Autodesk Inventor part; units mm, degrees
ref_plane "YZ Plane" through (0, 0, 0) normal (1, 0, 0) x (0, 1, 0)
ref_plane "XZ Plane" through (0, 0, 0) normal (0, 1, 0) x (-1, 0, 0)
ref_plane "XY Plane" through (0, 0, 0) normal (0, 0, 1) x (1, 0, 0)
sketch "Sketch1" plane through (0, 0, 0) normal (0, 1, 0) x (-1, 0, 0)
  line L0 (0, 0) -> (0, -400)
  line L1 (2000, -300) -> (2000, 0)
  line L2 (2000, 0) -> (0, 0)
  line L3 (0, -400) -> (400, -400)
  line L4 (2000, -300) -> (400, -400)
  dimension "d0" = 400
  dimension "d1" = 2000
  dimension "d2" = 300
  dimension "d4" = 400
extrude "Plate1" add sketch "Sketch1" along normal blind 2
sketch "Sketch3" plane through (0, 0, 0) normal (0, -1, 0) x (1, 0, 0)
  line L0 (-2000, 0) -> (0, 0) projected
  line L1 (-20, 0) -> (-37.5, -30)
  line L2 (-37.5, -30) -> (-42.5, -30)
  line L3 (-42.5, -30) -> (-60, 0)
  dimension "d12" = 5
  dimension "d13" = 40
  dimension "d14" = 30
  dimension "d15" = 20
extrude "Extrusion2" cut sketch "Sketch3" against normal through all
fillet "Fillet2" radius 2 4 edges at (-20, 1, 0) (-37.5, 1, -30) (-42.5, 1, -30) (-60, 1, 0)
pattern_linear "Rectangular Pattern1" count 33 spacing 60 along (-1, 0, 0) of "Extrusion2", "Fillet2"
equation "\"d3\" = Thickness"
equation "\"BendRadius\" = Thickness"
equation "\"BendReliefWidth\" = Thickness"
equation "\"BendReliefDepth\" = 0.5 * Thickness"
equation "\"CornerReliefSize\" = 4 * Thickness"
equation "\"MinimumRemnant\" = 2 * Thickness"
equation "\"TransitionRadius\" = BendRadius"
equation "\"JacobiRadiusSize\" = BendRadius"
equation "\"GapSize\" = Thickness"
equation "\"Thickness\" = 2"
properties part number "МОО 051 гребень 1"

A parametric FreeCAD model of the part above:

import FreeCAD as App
import Part
import Sketcher

V = App.Vector
Q = App.Units.Quantity


def edges_at(feature, points):
    """Names of the edges that pass closest to the given points."""
    edges = feature.Shape.Edges
    near = lambda p: min(range(len(edges)), key=lambda i: edges[i].distToShape(Part.Vertex(*p))[0])
    return sorted({f"Edge{near(p) + 1}" for p in points})


def add_polygon(sketch, points):
    """Adds a closed chain of lines whose ends are joined by coincident constraints."""
    first, n = sketch.GeometryCount, len(points)
    for a, b in zip(points, points[1:] + points[:1]):
        sketch.addGeometry(Part.LineSegment(App.Vector(*a, 0), App.Vector(*b, 0)), False)
    for i in range(n):
        sketch.addConstraint(Sketcher.Constraint("Coincident", first + i, 2, first + (i + 1) % n, 1))

doc = App.newDocument("Part")
params = doc.addObject("Spreadsheet::Sheet", "Params")
for row, (alias, value) in enumerate([
    ("sketch1_width", "2000 mm"),
    ("sketch1_width2", "400 mm"),
    ("sketch1_height", "300 mm"),
    ("pad1_length", "2 mm"),
    ("sketch2_width", "40 mm"),
    ("sketch2_width2", "5 mm"),
    ("fillet_radius", "2 mm"),
    ("linearpattern_pitch", "60 mm"),
], start=1):
    params.set(f"A{row}", alias)
    params.set(f"B{row}", "=" + value)
    params.setAlias(f"B{row}", alias)

body = doc.addObject("PartDesign::Body", "Body")

# Sketch on XZ plane
sketch1 = body.newObject("Sketcher::SketchObject", "Sketch")
sketch1.AttachmentSupport = (doc.getObject("XZ_Plane"), [""])
sketch1.MapMode = "FlatFace"
add_polygon(sketch1, [(-2000, 0), (0, 0), (0, -400), (-400, -400), (-2000, -300)])  # lines 0-4
sketch1.addConstraint([
    Sketcher.Constraint("Horizontal", 0),
    Sketcher.Constraint("Vertical", 1),
    Sketcher.Constraint("Horizontal", 2),
    Sketcher.Constraint("Vertical", 4),
    Sketcher.Constraint("Coincident", 0, 2, -1, 1),
    Sketcher.Constraint("Equal", 2, 1),
    Sketcher.Constraint("DistanceX", 0, 1, 0, 2, Q("2000 mm")),
    Sketcher.Constraint("DistanceX", 2, 2, 2, 1, Q("400 mm")),
    Sketcher.Constraint("DistanceY", 4, 1, 4, 2, Q("300 mm")),
])
sketch1.setExpression("Constraints[11]", "Params.sketch1_width")
sketch1.setExpression("Constraints[12]", "Params.sketch1_width2")
sketch1.setExpression("Constraints[13]", "Params.sketch1_height")
pad1 = body.newObject("PartDesign::Pad", "Pad")
pad1.Profile = sketch1
pad1.setExpression("Length", "Params.pad1_length")
pad1.Reversed = True

# Sketch on XZ plane
sketch2 = body.newObject("Sketcher::SketchObject", "Sketch001")
sketch2.AttachmentSupport = (doc.getObject("XZ_Plane"), [""])
sketch2.MapMode = "FlatFace"
add_polygon(sketch2, [(-20, 0), (-60, 0), (-42, -30), (-38, -30)])  # lines 0-3
sketch2.addConstraint([
    Sketcher.Constraint("Horizontal", 0),
    Sketcher.Constraint("Horizontal", 2),
    Sketcher.Constraint("PointOnObject", 0, 2, -1),
    Sketcher.Constraint("Equal", 1, 3),
    Sketcher.Constraint("DistanceX", 0, 2, 0, 1, Q("40 mm")),
    Sketcher.Constraint("DistanceX", 2, 1, 2, 2, Q("5 mm")),
    Sketcher.Constraint("DistanceY", 1, 2, -1, 1, Q("30 mm")),
    Sketcher.Constraint("DistanceX", 3, 2, -1, 1, Q("20 mm")),
])
sketch2.setExpression("Constraints[8]", "Params.sketch2_width")
sketch2.setExpression("Constraints[9]", "Params.sketch2_width2")
pocket1 = body.newObject("PartDesign::Pocket", "Pocket")
pocket1.Profile = sketch2
pocket1.Type = "ThroughAll"
doc.recompute()

fillet = body.newObject("PartDesign::Fillet", "Fillet")
fillet.Base = (pocket1, edges_at(pocket1, [
    (-20, 1, 0),
    (-37.5, 1, -30),
    (-42.5, 1, -30),
    (-60, 1, 0),
]))
fillet.setExpression("Radius", "Params.fillet_radius")
doc.recompute()

linearpattern = body.newObject("PartDesign::LinearPattern", "LinearPattern")
linearpattern.Originals = [pocket1, fillet]
linearpattern.Direction = (doc.getObject("X_Axis"), [""])
linearpattern.Mode = "offset"
linearpattern.setExpression("Offset", "Params.linearpattern_pitch")
linearpattern.Occurrences = 33
linearpattern.Reversed = True
body.Tip = linearpattern

doc.recompute()
